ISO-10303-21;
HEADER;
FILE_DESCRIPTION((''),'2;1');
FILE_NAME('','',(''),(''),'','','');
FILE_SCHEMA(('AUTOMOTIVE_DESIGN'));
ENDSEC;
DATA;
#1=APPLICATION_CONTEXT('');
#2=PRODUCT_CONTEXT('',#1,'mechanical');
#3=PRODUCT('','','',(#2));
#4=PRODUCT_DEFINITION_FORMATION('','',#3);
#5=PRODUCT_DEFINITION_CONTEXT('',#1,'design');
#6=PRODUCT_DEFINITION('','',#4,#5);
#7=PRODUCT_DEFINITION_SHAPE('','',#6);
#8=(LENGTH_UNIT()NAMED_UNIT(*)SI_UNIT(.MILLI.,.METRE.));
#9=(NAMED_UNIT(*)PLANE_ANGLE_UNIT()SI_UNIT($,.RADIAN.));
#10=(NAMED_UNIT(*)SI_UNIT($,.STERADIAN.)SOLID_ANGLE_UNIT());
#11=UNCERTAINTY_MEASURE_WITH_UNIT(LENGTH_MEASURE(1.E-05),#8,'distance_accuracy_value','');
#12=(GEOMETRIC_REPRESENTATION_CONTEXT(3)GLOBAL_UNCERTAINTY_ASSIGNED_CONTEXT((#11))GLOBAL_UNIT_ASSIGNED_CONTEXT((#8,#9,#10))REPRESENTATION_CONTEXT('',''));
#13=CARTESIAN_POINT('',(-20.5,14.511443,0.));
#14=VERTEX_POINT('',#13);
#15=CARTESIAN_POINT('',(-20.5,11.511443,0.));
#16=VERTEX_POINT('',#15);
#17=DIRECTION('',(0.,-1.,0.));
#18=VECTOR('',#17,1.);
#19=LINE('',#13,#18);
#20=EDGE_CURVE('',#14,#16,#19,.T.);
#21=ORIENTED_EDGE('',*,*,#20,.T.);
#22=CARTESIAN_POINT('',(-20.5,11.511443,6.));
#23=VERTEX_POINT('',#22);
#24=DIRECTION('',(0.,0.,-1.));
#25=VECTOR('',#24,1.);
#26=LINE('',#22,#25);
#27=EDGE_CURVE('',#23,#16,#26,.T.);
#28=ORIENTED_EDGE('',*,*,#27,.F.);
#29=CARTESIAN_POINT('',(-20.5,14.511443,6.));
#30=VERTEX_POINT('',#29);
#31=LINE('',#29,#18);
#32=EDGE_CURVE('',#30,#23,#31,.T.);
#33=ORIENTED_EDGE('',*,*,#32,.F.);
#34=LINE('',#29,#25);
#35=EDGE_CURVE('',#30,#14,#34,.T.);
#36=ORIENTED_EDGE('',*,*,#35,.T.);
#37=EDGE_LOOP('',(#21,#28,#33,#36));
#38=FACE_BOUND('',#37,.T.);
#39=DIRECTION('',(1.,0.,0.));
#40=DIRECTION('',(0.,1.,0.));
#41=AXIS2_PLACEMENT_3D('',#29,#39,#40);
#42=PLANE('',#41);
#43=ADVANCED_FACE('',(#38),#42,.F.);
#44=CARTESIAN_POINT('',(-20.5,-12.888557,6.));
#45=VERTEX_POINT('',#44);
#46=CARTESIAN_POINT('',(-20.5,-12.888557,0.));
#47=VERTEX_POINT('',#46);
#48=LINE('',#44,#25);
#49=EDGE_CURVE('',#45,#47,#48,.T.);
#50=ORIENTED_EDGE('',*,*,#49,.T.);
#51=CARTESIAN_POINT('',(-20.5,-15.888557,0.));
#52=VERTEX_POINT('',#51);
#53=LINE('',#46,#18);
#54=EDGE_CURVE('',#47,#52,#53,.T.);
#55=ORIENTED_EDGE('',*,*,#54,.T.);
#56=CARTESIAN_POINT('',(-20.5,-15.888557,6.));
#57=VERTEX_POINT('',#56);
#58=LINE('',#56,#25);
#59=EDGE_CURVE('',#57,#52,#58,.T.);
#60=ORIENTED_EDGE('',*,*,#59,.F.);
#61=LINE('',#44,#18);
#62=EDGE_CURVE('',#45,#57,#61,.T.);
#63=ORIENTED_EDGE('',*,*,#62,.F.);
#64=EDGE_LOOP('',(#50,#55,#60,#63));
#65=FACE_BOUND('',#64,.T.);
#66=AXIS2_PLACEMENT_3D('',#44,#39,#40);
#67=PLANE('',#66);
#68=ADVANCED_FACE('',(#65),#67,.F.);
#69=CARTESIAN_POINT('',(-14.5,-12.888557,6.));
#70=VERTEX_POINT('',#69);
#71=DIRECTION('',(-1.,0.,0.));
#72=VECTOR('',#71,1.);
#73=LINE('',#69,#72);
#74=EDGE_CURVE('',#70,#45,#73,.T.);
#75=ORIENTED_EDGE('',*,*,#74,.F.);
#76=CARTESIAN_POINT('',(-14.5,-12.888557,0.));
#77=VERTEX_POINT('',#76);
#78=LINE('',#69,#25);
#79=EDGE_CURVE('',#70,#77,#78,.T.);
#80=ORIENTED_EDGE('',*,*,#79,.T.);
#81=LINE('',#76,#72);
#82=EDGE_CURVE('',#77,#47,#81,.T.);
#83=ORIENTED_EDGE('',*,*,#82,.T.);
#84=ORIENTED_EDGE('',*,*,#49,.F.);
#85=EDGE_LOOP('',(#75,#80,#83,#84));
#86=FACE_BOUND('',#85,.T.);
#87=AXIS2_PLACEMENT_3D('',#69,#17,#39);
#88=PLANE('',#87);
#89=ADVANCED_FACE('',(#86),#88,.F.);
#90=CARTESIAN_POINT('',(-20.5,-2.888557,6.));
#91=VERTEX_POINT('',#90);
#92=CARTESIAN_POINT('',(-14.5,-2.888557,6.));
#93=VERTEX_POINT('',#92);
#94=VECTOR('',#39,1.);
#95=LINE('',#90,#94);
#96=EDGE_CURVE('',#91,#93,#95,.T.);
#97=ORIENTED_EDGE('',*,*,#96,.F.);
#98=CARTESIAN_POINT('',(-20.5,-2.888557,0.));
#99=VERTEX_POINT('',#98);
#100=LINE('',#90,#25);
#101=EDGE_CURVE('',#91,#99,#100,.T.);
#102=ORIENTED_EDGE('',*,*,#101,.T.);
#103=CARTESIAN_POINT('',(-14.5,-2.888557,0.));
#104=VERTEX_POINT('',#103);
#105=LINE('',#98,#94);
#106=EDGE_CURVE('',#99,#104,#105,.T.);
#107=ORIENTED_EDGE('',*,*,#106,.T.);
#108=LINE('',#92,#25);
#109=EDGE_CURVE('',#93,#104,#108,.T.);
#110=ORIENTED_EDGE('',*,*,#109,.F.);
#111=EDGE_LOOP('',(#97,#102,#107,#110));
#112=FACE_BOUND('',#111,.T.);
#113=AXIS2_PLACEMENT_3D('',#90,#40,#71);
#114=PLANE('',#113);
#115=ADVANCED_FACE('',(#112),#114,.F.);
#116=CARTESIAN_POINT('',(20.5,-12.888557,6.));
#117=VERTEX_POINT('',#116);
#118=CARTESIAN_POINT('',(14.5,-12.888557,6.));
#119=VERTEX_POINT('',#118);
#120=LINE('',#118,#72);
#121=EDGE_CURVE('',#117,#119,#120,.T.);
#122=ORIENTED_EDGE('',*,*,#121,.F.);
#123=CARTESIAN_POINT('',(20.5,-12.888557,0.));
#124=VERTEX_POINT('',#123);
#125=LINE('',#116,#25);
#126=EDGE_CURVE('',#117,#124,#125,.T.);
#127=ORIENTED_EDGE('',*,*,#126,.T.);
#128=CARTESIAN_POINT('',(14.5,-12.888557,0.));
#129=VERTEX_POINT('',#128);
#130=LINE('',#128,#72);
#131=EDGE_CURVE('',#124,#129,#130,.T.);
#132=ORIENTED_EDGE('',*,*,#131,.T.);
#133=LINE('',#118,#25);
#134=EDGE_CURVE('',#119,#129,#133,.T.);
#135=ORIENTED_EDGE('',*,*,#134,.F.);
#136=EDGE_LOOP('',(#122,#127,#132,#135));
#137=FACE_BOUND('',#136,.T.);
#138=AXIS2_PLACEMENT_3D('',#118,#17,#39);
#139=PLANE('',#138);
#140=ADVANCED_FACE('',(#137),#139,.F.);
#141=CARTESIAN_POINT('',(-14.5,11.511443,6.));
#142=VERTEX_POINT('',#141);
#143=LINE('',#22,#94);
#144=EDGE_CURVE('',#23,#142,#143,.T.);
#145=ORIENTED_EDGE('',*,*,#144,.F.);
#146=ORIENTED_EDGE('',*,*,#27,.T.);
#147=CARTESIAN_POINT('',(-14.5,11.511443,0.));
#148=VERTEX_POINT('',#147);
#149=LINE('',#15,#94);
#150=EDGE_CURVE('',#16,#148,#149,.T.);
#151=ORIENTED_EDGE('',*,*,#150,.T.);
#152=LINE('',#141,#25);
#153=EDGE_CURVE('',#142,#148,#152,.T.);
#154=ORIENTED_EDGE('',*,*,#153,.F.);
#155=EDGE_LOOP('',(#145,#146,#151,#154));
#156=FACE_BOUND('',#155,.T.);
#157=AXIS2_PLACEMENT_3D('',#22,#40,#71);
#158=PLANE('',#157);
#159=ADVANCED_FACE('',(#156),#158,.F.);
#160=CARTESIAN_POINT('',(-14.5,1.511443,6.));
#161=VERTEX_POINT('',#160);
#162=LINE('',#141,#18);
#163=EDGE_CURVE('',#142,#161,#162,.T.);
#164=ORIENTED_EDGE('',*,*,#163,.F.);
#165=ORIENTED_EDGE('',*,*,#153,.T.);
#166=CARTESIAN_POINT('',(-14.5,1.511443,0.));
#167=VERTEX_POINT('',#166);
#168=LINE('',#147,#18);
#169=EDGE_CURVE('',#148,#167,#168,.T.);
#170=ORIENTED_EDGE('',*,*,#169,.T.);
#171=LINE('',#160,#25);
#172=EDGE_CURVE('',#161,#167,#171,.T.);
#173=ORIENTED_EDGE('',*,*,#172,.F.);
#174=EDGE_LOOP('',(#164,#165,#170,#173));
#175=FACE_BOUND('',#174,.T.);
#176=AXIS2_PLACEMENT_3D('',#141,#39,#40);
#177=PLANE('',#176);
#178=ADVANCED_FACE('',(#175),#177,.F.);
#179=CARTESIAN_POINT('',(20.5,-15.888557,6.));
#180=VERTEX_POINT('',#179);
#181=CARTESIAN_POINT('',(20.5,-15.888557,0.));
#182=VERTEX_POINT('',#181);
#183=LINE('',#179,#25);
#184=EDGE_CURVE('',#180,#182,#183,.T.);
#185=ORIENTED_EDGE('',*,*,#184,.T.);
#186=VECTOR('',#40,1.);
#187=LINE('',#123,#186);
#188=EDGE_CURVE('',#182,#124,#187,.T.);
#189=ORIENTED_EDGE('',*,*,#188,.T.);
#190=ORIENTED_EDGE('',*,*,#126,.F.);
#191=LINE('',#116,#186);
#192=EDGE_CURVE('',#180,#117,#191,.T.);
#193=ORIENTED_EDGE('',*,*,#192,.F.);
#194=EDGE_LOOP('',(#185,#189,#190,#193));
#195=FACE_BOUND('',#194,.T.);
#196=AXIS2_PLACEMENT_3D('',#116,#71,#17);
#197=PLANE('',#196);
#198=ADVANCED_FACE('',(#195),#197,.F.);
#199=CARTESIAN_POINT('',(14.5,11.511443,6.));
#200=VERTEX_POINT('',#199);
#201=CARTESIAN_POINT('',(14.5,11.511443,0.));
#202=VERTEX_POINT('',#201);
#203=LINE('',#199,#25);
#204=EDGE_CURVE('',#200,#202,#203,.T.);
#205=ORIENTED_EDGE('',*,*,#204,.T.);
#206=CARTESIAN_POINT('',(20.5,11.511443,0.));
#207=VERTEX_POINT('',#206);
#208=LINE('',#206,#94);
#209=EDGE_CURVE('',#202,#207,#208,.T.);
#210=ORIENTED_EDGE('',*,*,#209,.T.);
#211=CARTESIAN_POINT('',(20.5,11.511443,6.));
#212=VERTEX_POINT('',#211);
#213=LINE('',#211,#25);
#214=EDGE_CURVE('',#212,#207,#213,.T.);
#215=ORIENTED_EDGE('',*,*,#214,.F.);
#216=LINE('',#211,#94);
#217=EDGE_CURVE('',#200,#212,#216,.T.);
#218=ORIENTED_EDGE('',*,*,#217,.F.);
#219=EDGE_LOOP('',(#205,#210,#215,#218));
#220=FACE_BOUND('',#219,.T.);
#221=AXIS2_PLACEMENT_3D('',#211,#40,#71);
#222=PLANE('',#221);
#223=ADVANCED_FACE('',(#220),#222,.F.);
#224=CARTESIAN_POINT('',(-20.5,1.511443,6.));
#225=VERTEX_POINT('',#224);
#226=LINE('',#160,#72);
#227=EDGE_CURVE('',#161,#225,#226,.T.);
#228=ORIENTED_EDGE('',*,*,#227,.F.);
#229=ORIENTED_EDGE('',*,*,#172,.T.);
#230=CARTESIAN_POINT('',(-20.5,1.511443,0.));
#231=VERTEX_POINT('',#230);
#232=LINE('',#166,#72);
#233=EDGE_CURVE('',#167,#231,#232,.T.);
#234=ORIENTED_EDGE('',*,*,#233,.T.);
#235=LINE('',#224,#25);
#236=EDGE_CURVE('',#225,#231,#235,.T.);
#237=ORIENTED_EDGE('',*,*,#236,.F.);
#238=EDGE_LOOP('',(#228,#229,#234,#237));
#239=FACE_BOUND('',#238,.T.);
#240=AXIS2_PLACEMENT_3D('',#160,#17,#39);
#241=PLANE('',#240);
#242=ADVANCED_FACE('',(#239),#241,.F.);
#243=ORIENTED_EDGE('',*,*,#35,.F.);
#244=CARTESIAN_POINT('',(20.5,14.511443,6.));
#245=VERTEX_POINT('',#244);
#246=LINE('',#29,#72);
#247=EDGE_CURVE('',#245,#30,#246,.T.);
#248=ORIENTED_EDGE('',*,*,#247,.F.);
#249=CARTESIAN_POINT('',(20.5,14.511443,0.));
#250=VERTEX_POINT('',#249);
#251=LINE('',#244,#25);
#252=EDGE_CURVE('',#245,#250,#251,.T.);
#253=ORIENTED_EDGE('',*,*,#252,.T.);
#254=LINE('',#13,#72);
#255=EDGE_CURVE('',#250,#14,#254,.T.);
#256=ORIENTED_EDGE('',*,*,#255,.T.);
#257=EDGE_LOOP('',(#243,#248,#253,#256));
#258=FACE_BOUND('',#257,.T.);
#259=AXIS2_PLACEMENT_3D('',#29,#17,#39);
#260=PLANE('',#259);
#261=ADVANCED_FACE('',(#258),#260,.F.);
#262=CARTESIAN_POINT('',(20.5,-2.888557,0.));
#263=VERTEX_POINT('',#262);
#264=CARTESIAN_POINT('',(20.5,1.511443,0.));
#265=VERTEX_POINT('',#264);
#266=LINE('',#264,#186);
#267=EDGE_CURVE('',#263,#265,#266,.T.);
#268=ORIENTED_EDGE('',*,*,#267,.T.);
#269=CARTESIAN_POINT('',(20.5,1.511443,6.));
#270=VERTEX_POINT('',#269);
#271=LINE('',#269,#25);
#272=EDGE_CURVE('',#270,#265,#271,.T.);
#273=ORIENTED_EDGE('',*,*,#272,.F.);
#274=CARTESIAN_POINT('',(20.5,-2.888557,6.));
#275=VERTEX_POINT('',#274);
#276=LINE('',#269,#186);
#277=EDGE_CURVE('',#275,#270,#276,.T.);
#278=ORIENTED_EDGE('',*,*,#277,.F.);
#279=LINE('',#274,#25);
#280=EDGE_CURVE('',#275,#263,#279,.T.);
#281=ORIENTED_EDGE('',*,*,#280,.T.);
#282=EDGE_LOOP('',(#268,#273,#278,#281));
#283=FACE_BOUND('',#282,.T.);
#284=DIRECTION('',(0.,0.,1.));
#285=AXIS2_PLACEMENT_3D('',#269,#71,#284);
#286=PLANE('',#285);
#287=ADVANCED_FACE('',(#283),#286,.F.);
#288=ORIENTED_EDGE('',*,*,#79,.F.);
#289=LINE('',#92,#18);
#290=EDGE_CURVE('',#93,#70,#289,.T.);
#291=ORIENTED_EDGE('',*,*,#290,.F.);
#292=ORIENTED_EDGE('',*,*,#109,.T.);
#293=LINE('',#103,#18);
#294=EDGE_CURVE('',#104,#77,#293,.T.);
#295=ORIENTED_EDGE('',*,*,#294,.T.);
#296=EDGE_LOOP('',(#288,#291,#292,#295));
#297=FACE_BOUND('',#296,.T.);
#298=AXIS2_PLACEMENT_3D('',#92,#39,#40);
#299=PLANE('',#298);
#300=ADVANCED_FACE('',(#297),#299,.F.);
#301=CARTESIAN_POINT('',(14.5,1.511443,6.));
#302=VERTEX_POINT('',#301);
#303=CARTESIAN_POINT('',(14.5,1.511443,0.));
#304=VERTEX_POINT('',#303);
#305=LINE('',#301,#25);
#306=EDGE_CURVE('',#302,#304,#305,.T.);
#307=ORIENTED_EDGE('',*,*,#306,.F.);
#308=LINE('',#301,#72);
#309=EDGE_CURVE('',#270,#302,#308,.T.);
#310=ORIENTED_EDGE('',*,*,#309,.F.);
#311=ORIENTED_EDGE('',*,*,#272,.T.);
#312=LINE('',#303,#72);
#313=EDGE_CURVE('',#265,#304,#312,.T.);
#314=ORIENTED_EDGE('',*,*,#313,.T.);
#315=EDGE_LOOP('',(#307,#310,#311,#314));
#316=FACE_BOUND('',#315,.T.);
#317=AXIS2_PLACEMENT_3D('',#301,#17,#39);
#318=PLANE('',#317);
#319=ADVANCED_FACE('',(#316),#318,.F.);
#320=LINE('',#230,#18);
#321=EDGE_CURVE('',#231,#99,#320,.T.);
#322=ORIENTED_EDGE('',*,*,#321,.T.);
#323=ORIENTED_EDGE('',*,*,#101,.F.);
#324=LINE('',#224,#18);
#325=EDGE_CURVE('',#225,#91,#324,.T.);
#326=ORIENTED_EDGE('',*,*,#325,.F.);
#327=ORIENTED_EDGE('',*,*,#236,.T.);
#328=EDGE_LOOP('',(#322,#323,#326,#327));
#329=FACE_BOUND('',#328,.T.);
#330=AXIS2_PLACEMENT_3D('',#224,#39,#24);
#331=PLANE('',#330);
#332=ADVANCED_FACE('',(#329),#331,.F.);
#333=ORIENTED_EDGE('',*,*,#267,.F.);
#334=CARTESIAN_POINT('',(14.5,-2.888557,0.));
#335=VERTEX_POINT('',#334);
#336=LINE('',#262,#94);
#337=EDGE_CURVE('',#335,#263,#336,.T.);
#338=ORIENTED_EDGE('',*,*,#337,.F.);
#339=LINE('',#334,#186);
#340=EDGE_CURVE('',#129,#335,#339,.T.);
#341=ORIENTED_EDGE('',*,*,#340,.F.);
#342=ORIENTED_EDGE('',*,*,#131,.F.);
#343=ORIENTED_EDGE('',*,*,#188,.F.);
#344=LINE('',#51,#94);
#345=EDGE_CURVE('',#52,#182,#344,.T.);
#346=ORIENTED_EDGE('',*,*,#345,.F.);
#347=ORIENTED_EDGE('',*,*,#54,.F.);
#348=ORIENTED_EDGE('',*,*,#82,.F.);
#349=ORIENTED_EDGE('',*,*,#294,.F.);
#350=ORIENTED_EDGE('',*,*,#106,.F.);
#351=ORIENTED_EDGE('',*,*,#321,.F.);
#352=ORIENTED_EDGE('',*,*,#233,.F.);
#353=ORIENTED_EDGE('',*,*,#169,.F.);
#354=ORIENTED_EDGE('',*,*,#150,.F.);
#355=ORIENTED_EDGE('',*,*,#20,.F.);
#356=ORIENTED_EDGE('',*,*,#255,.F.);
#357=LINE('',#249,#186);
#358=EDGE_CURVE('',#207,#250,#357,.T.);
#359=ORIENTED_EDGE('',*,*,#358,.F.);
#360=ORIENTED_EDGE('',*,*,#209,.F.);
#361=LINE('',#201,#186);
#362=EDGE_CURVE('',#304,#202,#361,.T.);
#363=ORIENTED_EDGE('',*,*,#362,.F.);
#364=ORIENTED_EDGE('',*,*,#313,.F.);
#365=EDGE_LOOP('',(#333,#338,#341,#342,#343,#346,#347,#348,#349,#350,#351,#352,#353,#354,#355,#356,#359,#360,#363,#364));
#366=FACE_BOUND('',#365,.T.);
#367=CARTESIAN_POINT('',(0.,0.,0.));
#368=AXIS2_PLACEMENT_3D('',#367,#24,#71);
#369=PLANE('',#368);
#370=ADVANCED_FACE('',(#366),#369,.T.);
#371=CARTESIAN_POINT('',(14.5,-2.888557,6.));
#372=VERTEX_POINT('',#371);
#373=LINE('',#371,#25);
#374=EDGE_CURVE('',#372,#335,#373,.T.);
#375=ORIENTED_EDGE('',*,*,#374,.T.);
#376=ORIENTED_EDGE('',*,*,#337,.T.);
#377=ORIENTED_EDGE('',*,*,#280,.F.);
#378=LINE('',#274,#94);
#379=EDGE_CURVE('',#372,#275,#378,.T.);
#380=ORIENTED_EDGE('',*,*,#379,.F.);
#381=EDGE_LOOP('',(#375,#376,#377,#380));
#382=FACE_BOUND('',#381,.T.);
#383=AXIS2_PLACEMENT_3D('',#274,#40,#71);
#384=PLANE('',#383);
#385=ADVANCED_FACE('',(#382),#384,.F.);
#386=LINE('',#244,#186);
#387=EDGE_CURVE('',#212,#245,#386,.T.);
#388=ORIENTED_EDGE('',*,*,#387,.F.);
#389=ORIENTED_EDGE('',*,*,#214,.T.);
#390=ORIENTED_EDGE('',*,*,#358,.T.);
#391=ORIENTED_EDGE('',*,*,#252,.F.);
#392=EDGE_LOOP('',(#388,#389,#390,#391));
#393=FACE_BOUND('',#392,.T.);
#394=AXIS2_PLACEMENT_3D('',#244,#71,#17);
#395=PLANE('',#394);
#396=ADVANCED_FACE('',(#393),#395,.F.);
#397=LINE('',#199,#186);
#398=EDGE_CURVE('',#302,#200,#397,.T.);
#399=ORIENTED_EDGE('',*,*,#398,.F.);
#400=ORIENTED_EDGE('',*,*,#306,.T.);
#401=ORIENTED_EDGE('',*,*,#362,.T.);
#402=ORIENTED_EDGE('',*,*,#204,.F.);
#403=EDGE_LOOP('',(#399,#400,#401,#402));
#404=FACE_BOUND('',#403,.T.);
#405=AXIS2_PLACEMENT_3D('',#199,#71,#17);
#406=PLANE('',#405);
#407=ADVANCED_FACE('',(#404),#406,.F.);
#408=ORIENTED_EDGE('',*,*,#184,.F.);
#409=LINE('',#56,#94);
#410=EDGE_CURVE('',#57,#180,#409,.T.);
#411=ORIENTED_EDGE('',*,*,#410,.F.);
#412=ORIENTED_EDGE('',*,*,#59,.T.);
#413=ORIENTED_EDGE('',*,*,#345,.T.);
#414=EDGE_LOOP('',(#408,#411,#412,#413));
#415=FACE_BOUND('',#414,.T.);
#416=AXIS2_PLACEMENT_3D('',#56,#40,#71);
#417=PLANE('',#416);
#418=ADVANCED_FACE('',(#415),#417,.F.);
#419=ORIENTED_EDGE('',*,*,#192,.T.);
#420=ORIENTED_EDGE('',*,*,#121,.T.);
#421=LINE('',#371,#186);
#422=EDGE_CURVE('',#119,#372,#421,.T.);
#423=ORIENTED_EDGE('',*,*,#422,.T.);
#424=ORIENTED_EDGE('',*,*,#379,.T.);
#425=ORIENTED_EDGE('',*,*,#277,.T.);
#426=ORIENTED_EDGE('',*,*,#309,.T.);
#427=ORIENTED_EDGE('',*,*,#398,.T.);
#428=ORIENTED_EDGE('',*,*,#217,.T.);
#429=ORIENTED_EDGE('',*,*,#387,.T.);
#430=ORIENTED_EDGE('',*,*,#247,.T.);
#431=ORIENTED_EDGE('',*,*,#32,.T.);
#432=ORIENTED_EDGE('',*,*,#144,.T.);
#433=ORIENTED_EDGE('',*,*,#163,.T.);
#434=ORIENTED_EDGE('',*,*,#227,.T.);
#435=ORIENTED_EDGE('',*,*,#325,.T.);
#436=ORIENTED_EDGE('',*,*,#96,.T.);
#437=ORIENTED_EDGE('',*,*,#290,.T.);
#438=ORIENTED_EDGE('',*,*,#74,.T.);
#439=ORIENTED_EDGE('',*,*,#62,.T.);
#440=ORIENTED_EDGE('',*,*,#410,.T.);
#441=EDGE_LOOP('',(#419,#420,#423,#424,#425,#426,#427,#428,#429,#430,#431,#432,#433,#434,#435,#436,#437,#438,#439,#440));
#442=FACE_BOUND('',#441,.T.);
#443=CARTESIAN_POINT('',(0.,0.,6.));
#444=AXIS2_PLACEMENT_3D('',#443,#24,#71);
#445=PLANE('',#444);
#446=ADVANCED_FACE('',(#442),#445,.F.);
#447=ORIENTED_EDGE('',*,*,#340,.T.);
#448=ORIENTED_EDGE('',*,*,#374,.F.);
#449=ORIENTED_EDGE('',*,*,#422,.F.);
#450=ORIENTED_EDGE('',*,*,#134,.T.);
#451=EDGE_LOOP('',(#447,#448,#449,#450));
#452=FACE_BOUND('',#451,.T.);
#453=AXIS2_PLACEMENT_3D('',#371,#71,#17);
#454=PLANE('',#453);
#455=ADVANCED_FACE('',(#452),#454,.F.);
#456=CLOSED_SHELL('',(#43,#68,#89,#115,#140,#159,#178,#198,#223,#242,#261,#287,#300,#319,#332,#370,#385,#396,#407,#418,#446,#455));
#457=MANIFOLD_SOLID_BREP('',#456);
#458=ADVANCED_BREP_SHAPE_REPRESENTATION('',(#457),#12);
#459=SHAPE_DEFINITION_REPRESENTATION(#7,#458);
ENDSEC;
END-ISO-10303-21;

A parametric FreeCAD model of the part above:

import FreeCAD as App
import Part
import Sketcher
from FreeCAD import Vector

doc = App.newDocument("Part")
params = doc.addObject("Spreadsheet::Sheet", "Params")
for row, (alias, value) in enumerate([
    ("sketch1_width", "41 mm"),
    ("sketch1_width2", "6 mm"),
    ("sketch1_height", "3 mm"),
    ("sketch1_height2", "10 mm"),
    ("sketch1_height3", "4.4 mm"),
    ("pad1_length", "6 mm"),
], start=1):
    params.set(f"A{row}", alias)
    params.set(f"B{row}", "=" + value)
    params.setAlias(f"B{row}", alias)

body = doc.addObject("PartDesign::Body", "Body")

# Sketch on XY plane
sketch1 = body.newObject("Sketcher::SketchObject", "Sketch")
sketch1.AttachmentSupport = (doc.getObject("XY_Plane"), [""])
sketch1.MapMode = "FlatFace"
sketch1.addGeometry([
    Part.LineSegment(Vector(20.5, 14.5, 0), Vector(-20.5, 14.5, 0)),  # 0
    Part.LineSegment(Vector(-20.5, 14.5, 0), Vector(-20.5, 11.5, 0)),  # 1
    Part.LineSegment(Vector(-20.5, 11.5, 0), Vector(-14.5, 11.5, 0)),  # 2
    Part.LineSegment(Vector(-14.5, 11.5, 0), Vector(-14.5, 1.5, 0)),  # 3
    Part.LineSegment(Vector(-14.5, 1.5, 0), Vector(-20.5, 1.5, 0)),  # 4
    Part.LineSegment(Vector(-20.5, 1.5, 0), Vector(-20.5, -2.9, 0)),  # 5
    Part.LineSegment(Vector(-20.5, -2.9, 0), Vector(-14.5, -2.9, 0)),  # 6
    Part.LineSegment(Vector(-14.5, -2.9, 0), Vector(-14.5, -12.9, 0)),  # 7
    Part.LineSegment(Vector(-14.5, -12.9, 0), Vector(-20.5, -12.9, 0)),  # 8
    Part.LineSegment(Vector(-20.5, -12.9, 0), Vector(-20.5, -15.9, 0)),  # 9
    Part.LineSegment(Vector(-20.5, -15.9, 0), Vector(20.5, -15.9, 0)),  # 10
    Part.LineSegment(Vector(20.5, -15.9, 0), Vector(20.5, -12.9, 0)),  # 11
    Part.LineSegment(Vector(20.5, -12.9, 0), Vector(14.5, -12.9, 0)),  # 12
    Part.LineSegment(Vector(14.5, -12.9, 0), Vector(14.5, -2.9, 0)),  # 13
    Part.LineSegment(Vector(14.5, -2.9, 0), Vector(20.5, -2.9, 0)),  # 14
    Part.LineSegment(Vector(20.5, -2.9, 0), Vector(20.5, 1.5, 0)),  # 15
    Part.LineSegment(Vector(20.5, 1.5, 0), Vector(14.5, 1.5, 0)),  # 16
    Part.LineSegment(Vector(14.5, 1.5, 0), Vector(14.5, 11.5, 0)),  # 17
    Part.LineSegment(Vector(14.5, 11.5, 0), Vector(20.5, 11.5, 0)),  # 18
    Part.LineSegment(Vector(20.5, 11.5, 0), Vector(20.5, 14.5, 0)),  # 19
], False)
sketch1.addConstraint([
    Sketcher.Constraint("Coincident", 0, 2, 1, 1),
    Sketcher.Constraint("Coincident", 1, 2, 2, 1),
    Sketcher.Constraint("Coincident", 2, 2, 3, 1),
    Sketcher.Constraint("Coincident", 3, 2, 4, 1),
    Sketcher.Constraint("Coincident", 4, 2, 5, 1),
    Sketcher.Constraint("Coincident", 5, 2, 6, 1),
    Sketcher.Constraint("Coincident", 6, 2, 7, 1),
    Sketcher.Constraint("Coincident", 7, 2, 8, 1),
    Sketcher.Constraint("Coincident", 8, 2, 9, 1),
    Sketcher.Constraint("Coincident", 9, 2, 10, 1),
    Sketcher.Constraint("Coincident", 10, 2, 11, 1),
    Sketcher.Constraint("Coincident", 11, 2, 12, 1),
    Sketcher.Constraint("Coincident", 12, 2, 13, 1),
    Sketcher.Constraint("Coincident", 13, 2, 14, 1),
    Sketcher.Constraint("Coincident", 14, 2, 15, 1),
    Sketcher.Constraint("Coincident", 15, 2, 16, 1),
    Sketcher.Constraint("Coincident", 16, 2, 17, 1),
    Sketcher.Constraint("Coincident", 17, 2, 18, 1),
    Sketcher.Constraint("Coincident", 18, 2, 19, 1),
    Sketcher.Constraint("Coincident", 19, 2, 0, 1),
    Sketcher.Constraint("Horizontal", 0),
    Sketcher.Constraint("Vertical", 1),
    Sketcher.Constraint("Horizontal", 2),
    Sketcher.Constraint("Vertical", 3),
    Sketcher.Constraint("Horizontal", 4),
    Sketcher.Constraint("Vertical", 5),
    Sketcher.Constraint("Horizontal", 6),
    Sketcher.Constraint("Vertical", 7),
    Sketcher.Constraint("Horizontal", 8),
    Sketcher.Constraint("Vertical", 9),
    Sketcher.Constraint("Horizontal", 10),
    Sketcher.Constraint("Vertical", 11),
    Sketcher.Constraint("Horizontal", 12),
    Sketcher.Constraint("Vertical", 13),
    Sketcher.Constraint("Horizontal", 14),
    Sketcher.Constraint("Vertical", 15),
    Sketcher.Constraint("Horizontal", 16),
    Sketcher.Constraint("Vertical", 17),
    Sketcher.Constraint("Horizontal", 18),
    Sketcher.Constraint("Vertical", 19),
    Sketcher.Constraint("Symmetric", 8, 2, 11, 2, -2),
    Sketcher.Constraint("Symmetric", 6, 2, 13, 2, -2),
    Sketcher.Constraint("Symmetric", 4, 2, 15, 2, -2),
    Sketcher.Constraint("Symmetric", 2, 2, 17, 2, -2),
    Sketcher.Constraint("Vertical", 1, 2, 4, 2),
    Sketcher.Constraint("Vertical", 3, 2, 6, 2),
    Sketcher.Constraint("Vertical", 5, 2, 8, 2),
    Sketcher.Constraint("Vertical", 15, 2, 18, 2),
    Sketcher.Constraint("Equal", 3, 7),
    Sketcher.Constraint("Equal", 1, 9),
    Sketcher.Constraint("DistanceX", 0, 2, 0, 1, 41.0),
    Sketcher.Constraint("DistanceX", 2, 1, 2, 2, 6.0),
    Sketcher.Constraint("DistanceY", 1, 2, 1, 1, 3.0),
    Sketcher.Constraint("DistanceY", 3, 2, 3, 1, 10.0),
    Sketcher.Constraint("DistanceY", 5, 2, 5, 1, 4.4),
    Sketcher.Constraint("DistanceY", -1, 1, 0, 2, 14.511443),
])
sketch1.setExpression("Constraints[50]", "Params.sketch1_width")
sketch1.setExpression("Constraints[51]", "Params.sketch1_width2")
sketch1.setExpression("Constraints[52]", "Params.sketch1_height")
sketch1.setExpression("Constraints[53]", "Params.sketch1_height2")
sketch1.setExpression("Constraints[54]", "Params.sketch1_height3")
pad1 = body.newObject("PartDesign::Pad", "Pad")
pad1.Profile = sketch1
pad1.setExpression("Length", "Params.pad1_length")

doc.recompute()
